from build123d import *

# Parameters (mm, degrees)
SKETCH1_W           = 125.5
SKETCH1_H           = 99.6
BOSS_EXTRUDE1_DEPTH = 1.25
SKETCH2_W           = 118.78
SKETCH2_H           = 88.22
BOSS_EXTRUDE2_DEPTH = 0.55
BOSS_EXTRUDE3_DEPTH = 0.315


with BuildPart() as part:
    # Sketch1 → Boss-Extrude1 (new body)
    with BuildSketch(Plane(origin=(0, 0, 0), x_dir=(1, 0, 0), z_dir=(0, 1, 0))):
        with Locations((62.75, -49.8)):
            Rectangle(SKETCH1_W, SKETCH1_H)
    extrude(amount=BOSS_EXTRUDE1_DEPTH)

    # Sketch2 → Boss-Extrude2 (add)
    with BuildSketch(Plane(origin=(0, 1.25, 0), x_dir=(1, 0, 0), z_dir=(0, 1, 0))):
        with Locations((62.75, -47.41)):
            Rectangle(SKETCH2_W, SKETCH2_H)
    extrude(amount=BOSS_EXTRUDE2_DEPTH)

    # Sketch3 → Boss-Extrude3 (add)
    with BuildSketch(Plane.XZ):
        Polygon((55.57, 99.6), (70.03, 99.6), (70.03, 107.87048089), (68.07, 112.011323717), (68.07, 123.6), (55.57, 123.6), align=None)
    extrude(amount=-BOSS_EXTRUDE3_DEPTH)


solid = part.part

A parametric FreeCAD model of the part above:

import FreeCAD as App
import Part
import Sketcher

doc = App.newDocument("Part")
params = doc.addObject("Spreadsheet::Sheet", "Params")
for row, (alias, value) in enumerate([
    ("sketch1_width", "125.5 mm"),
    ("sketch1_height", "99.6 mm"),
    ("pad1_length", "1.25 mm"),
    ("sketch2_width", "118.78 mm"),
    ("sketch2_height", "88.22 mm"),
    ("pad2_length", "0.55 mm"),
    ("sketch3_height", "24 mm"),
    ("sketch3_width", "12.5 mm"),
    ("sketch3_width2", "14.46 mm"),
    ("pad3_length", "0.315 mm"),
], start=1):
    params.set(f"A{row}", alias)
    params.set(f"B{row}", "=" + value)
    params.setAlias(f"B{row}", alias)

body = doc.addObject("PartDesign::Body", "Body")

# Sketch on XZ plane
sketch1 = body.newObject("Sketcher::SketchObject", "Sketch")
sketch1.AttachmentSupport = (doc.getObject("XZ_Plane"), [""])
sketch1.MapMode = "FlatFace"
sketch1.addGeometry([
    Part.LineSegment(App.Vector(0, 0, 0), App.Vector(0, 100, 0)),
    Part.LineSegment(App.Vector(0, 100, 0), App.Vector(126, 100, 0)),
    Part.LineSegment(App.Vector(126, 100, 0), App.Vector(126, 0, 0)),
    Part.LineSegment(App.Vector(126, 0, 0), App.Vector(0, 0, 0)),
], False)
sketch1.addConstraint([
    Sketcher.Constraint("Coincident", 0, 2, 1, 1),
    Sketcher.Constraint("Coincident", 1, 2, 2, 1),
    Sketcher.Constraint("Coincident", 2, 2, 3, 1),
    Sketcher.Constraint("Coincident", 3, 2, 0, 1),
    Sketcher.Constraint("Vertical", 0),
    Sketcher.Constraint("Horizontal", 1),
    Sketcher.Constraint("Vertical", 2),
    Sketcher.Constraint("Horizontal", 3),
    Sketcher.Constraint("Coincident", 3, 2, -1, 1),
    Sketcher.Constraint("DistanceX", 1, 1, 1, 2, 125.5),
    Sketcher.Constraint("DistanceY", 0, 1, 0, 2, 99.6),
])
sketch1.setExpression("Constraints[9]", "Params.sketch1_width")
sketch1.setExpression("Constraints[10]", "Params.sketch1_height")
pad1 = body.newObject("PartDesign::Pad", "Pad")
pad1.Profile = sketch1
pad1.setExpression("Length", "Params.pad1_length")
pad1.Reversed = True

# Sketch on XZ plane
sketch2 = body.newObject("Sketcher::SketchObject", "Sketch001")
sketch2.AttachmentSupport = (doc.getObject("XZ_Plane"), [""])
sketch2.MapMode = "FlatFace"
sketch2.AttachmentOffset = App.Placement(App.Vector(0, 0, -1.25), App.Rotation())
sketch2.addGeometry([
    Part.LineSegment(App.Vector(3, 3, 0), App.Vector(3, 92, 0)),
    Part.LineSegment(App.Vector(3, 92, 0), App.Vector(122, 92, 0)),
    Part.LineSegment(App.Vector(122, 92, 0), App.Vector(122, 3, 0)),
    Part.LineSegment(App.Vector(122, 3, 0), App.Vector(3, 3, 0)),
], False)
sketch2.addConstraint([
    Sketcher.Constraint("Coincident", 0, 2, 1, 1),
    Sketcher.Constraint("Coincident", 1, 2, 2, 1),
    Sketcher.Constraint("Coincident", 2, 2, 3, 1),
    Sketcher.Constraint("Coincident", 3, 2, 0, 1),
    Sketcher.Constraint("Vertical", 0),
    Sketcher.Constraint("Horizontal", 1),
    Sketcher.Constraint("Vertical", 2),
    Sketcher.Constraint("Horizontal", 3),
    Sketcher.Constraint("DistanceX", 1, 1, 1, 2, 118.78),
    Sketcher.Constraint("DistanceY", 0, 1, 0, 2, 88.22),
    Sketcher.Constraint("DistanceY", -1, 1, 2, 2, 3.3),
    Sketcher.Constraint("DistanceX", -1, 1, 0, 2, 3.36),
])
sketch2.setExpression("Constraints[8]", "Params.sketch2_width")
sketch2.setExpression("Constraints[9]", "Params.sketch2_height")
pad2 = body.newObject("PartDesign::Pad", "Pad001")
pad2.Profile = sketch2
pad2.setExpression("Length", "Params.pad2_length")
pad2.Reversed = True

# Sketch on XZ plane
sketch3 = body.newObject("Sketcher::SketchObject", "Sketch002")
sketch3.AttachmentSupport = (doc.getObject("XZ_Plane"), [""])
sketch3.MapMode = "FlatFace"
sketch3.addGeometry([
    Part.LineSegment(App.Vector(55.6, 99.6, 0), App.Vector(70, 99.6, 0)),  # 0
    Part.LineSegment(App.Vector(70, 99.6, 0), App.Vector(70, 107.9, 0)),  # 1
    Part.LineSegment(App.Vector(70, 107.9, 0), App.Vector(68.1, 112, 0)),  # 2
    Part.LineSegment(App.Vector(68.1, 112, 0), App.Vector(68.1, 123.6, 0)),  # 3
    Part.LineSegment(App.Vector(68.1, 123.6, 0), App.Vector(55.6, 123.6, 0)),  # 4
    Part.LineSegment(App.Vector(55.6, 123.6, 0), App.Vector(55.6, 99.6, 0)),  # 5
], False)
sketch3.addConstraint([
    Sketcher.Constraint("Coincident", 0, 2, 1, 1),
    Sketcher.Constraint("Coincident", 1, 2, 2, 1),
    Sketcher.Constraint("Coincident", 2, 2, 3, 1),
    Sketcher.Constraint("Coincident", 3, 2, 4, 1),
    Sketcher.Constraint("Coincident", 4, 2, 5, 1),
    Sketcher.Constraint("Coincident", 5, 2, 0, 1),
    Sketcher.Constraint("Horizontal", 0),
    Sketcher.Constraint("Vertical", 1),
    Sketcher.Constraint("Vertical", 3),
    Sketcher.Constraint("Horizontal", 4),
    Sketcher.Constraint("Vertical", 5),
    Sketcher.Constraint("DistanceY", 5, 2, 5, 1, 24.0),
    Sketcher.Constraint("DistanceX", 4, 2, 4, 1, 12.5),
    Sketcher.Constraint("DistanceX", 0, 1, 0, 2, 14.46),
    Sketcher.Constraint("DistanceY", -1, 1, 0, 2, 99.6),
    Sketcher.Constraint("DistanceX", -1, 1, 0, 2, 70.03),
    Sketcher.Constraint("DistanceY", 1, 1, 1, 2, 8.270481),
    Sketcher.Constraint("DistanceY", 3, 1, 3, 2, 11.588676),
])
sketch3.setExpression("Constraints[11]", "Params.sketch3_height")
sketch3.setExpression("Constraints[12]", "Params.sketch3_width")
sketch3.setExpression("Constraints[13]", "Params.sketch3_width2")
pad3 = body.newObject("PartDesign::Pad", "Pad002")
pad3.Profile = sketch3
pad3.setExpression("Length", "Params.pad3_length")
pad3.Reversed = True

doc.recompute()
